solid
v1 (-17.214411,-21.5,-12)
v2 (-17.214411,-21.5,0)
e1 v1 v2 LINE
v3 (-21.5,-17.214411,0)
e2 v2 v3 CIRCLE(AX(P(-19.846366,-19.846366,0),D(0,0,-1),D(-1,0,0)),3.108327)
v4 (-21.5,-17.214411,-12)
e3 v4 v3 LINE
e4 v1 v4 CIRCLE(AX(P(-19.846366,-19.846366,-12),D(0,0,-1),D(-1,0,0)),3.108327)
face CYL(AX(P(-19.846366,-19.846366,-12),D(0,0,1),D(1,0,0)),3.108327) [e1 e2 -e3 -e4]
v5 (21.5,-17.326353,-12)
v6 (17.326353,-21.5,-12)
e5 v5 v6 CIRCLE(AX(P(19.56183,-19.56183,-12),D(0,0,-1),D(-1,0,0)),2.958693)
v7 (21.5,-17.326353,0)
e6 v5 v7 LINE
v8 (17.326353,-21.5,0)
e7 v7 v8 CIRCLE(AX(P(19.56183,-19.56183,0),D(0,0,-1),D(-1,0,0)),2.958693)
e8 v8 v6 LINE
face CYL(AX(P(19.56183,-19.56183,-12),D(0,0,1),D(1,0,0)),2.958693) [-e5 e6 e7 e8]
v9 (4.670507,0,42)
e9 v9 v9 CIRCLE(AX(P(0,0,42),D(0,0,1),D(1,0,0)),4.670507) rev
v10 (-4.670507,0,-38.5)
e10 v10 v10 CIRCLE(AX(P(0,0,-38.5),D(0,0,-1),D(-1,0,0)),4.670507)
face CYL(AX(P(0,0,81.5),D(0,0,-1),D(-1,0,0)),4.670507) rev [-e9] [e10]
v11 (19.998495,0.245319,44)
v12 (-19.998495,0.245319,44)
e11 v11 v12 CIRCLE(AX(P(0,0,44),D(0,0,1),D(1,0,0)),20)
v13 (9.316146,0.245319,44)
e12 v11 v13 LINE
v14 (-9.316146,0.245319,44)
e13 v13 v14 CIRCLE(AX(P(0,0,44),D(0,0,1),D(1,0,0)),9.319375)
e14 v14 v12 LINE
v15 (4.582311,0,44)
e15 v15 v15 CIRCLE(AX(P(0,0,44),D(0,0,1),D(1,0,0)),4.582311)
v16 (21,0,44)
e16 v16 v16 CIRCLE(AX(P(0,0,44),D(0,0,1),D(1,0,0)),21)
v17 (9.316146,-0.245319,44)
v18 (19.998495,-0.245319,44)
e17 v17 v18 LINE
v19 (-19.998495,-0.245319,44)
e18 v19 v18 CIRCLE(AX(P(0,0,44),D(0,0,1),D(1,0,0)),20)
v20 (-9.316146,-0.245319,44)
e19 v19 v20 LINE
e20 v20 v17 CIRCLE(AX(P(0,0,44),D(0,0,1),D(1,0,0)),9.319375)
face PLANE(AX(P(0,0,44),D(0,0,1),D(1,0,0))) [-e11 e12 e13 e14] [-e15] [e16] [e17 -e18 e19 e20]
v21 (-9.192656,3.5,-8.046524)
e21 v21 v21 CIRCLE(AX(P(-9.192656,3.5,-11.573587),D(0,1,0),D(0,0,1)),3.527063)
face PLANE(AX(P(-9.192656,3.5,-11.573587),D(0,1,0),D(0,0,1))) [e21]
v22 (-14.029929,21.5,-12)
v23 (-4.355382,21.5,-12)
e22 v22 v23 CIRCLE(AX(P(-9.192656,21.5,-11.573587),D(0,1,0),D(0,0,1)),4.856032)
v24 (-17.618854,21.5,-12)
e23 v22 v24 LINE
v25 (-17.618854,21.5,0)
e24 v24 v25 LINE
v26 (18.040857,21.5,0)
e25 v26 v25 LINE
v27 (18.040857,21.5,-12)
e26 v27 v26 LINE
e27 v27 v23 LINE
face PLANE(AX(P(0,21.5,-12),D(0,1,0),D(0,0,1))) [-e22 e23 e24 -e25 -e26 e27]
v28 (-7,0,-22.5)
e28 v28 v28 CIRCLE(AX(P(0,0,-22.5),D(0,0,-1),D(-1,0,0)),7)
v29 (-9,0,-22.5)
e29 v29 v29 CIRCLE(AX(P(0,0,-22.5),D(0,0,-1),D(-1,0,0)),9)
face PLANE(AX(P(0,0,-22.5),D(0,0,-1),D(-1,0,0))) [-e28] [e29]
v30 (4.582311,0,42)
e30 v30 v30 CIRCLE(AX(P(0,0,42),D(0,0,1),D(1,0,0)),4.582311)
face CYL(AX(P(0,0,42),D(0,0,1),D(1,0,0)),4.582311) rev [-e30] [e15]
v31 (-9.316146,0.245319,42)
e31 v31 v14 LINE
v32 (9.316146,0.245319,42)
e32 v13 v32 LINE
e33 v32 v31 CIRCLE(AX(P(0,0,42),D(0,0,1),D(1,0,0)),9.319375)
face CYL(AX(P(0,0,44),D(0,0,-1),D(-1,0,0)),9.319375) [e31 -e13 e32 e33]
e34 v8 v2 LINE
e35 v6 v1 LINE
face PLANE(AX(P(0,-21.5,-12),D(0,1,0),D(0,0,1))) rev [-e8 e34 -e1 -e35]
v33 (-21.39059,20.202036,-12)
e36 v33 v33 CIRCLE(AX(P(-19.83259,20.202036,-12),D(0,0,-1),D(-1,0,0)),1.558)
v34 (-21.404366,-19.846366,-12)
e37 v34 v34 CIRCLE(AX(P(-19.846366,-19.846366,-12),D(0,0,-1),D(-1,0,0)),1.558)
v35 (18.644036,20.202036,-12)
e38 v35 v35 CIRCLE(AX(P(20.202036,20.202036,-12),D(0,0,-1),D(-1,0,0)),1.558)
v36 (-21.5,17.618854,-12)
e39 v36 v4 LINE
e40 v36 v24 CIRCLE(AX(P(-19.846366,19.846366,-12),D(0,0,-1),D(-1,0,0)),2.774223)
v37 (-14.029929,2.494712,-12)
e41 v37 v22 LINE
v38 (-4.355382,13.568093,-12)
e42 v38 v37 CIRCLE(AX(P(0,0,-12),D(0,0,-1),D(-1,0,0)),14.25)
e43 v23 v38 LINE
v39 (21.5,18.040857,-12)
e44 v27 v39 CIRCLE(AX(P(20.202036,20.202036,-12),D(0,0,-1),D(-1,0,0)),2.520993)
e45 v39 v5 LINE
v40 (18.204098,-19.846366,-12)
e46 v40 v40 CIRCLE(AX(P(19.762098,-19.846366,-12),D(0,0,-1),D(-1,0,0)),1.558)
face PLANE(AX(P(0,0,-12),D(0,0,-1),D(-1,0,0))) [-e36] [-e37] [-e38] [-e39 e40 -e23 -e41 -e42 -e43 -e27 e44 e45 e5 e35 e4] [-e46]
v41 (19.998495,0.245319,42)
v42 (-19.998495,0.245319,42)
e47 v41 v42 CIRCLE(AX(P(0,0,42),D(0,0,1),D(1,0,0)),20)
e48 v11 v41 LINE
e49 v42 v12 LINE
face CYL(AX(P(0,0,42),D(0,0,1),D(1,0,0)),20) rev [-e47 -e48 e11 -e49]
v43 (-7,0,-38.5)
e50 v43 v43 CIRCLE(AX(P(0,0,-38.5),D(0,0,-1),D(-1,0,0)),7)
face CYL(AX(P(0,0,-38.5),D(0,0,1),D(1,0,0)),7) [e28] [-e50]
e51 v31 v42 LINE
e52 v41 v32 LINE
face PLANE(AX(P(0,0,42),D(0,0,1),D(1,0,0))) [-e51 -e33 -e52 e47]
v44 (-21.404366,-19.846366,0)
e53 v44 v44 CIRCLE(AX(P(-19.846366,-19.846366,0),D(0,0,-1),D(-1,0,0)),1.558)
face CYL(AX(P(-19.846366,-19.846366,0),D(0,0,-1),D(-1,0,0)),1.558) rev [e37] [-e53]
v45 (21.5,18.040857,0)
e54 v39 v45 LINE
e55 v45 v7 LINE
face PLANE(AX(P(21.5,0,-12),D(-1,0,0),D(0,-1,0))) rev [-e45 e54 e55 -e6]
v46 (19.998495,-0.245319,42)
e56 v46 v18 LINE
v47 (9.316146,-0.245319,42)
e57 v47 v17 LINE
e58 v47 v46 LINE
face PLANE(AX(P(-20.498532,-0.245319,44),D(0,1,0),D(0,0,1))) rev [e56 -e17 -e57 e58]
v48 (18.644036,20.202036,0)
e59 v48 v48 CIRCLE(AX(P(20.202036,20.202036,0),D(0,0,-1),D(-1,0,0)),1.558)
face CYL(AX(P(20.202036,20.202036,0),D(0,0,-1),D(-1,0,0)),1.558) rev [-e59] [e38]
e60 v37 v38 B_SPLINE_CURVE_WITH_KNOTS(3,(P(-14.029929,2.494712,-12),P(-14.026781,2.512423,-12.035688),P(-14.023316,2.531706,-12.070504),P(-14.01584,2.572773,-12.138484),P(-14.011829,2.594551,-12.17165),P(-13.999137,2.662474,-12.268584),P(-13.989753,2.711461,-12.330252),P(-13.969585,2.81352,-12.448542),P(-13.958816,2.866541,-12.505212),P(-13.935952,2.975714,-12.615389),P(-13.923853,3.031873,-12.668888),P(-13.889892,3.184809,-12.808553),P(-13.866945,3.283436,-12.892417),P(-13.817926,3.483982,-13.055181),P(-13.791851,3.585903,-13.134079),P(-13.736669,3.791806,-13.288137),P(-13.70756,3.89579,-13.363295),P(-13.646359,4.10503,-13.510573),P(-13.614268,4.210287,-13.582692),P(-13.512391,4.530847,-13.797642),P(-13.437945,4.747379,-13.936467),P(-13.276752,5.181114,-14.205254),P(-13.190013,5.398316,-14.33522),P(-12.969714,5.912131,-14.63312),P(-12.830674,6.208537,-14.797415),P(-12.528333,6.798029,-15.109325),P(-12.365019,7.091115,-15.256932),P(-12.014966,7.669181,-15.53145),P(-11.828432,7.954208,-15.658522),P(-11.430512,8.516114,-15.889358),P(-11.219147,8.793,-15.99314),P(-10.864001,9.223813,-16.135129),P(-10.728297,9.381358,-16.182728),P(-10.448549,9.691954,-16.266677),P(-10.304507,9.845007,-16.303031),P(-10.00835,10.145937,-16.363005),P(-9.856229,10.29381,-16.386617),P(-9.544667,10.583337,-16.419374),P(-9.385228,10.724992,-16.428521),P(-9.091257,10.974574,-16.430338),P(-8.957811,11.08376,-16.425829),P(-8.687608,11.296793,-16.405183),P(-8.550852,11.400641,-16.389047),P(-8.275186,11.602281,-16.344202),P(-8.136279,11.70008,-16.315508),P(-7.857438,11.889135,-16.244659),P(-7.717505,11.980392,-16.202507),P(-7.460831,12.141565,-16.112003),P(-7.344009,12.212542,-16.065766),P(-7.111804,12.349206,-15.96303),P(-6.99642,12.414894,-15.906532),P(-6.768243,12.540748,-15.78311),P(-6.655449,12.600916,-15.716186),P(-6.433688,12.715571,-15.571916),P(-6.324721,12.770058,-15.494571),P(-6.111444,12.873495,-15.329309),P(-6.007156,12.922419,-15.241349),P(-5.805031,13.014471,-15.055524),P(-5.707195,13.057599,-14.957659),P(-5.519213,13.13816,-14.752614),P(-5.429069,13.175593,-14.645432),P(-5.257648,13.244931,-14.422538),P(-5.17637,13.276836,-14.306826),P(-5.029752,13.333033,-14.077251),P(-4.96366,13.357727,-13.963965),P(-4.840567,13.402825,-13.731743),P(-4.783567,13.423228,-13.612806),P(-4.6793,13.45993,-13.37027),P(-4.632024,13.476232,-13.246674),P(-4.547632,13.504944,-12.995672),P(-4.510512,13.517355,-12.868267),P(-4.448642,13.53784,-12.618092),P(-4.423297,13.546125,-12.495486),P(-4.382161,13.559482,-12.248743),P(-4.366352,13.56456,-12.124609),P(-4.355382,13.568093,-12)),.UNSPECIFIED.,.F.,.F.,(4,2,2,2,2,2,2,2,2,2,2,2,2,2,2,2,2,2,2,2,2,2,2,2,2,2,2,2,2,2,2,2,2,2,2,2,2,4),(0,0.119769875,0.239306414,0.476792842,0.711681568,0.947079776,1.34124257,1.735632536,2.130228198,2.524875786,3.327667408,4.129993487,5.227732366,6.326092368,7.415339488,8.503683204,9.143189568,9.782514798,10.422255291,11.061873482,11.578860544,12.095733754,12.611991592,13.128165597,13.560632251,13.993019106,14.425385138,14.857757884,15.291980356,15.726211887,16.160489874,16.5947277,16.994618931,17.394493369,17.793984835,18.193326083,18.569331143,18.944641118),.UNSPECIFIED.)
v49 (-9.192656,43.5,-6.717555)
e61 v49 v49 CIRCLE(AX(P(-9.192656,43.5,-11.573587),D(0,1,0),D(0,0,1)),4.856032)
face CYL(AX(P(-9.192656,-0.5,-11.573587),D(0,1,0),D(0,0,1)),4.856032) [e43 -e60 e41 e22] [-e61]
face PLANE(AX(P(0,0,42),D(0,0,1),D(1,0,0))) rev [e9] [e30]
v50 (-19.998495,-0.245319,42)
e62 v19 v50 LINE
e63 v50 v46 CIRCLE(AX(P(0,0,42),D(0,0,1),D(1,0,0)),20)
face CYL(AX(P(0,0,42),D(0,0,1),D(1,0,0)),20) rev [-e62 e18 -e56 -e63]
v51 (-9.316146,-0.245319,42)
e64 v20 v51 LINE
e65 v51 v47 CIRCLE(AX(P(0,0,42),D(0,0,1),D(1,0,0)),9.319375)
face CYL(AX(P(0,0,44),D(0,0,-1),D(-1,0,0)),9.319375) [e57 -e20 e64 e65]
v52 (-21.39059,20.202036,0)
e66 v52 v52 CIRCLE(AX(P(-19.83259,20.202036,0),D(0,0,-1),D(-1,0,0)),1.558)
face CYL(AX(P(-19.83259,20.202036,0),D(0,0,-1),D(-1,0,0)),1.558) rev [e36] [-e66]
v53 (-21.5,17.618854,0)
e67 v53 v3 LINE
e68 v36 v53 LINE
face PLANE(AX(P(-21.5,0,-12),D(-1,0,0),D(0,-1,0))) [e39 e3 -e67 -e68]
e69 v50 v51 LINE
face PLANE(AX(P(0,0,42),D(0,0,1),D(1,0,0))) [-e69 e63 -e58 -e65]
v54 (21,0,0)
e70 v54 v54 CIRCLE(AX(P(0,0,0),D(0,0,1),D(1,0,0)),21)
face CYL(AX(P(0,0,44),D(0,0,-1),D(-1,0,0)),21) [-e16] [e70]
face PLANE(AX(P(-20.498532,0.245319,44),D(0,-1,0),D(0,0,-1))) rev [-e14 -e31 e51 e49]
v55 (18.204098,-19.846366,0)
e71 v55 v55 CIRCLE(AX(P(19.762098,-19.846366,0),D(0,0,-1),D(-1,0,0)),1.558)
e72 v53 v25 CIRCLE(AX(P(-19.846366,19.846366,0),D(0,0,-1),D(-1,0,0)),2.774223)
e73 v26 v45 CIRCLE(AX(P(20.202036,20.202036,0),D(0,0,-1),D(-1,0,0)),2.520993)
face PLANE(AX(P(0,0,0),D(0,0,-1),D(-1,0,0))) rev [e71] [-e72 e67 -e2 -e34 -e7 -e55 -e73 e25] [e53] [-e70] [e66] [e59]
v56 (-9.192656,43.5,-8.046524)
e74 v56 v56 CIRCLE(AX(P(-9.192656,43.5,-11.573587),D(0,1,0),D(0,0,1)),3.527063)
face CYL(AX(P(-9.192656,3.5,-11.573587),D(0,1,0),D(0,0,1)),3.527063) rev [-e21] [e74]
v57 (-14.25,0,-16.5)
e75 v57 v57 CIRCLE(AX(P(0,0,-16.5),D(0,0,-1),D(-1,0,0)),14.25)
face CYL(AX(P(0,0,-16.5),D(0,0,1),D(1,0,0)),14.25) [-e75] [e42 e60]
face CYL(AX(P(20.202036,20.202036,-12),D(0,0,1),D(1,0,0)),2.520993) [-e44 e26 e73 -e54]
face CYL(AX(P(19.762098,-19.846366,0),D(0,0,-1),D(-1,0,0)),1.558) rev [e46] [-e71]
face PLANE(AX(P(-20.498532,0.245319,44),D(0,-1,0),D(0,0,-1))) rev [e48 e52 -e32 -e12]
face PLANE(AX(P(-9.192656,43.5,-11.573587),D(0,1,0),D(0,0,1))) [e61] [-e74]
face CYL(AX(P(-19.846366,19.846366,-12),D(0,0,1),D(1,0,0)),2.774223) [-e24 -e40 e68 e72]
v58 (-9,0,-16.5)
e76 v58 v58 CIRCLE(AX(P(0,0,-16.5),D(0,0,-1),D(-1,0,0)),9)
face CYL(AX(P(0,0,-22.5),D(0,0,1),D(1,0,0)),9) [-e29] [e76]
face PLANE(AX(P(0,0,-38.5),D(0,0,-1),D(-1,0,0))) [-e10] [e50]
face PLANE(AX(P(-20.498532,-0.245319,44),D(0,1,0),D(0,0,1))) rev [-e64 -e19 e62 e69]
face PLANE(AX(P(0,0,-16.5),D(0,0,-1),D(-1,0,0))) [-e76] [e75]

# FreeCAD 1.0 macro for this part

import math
import FreeCAD as App
import Part
import Sketcher

V = App.Vector


def add_polygon(sketch, points):
    """Adds a closed chain of lines whose ends are joined by coincident constraints."""
    first, n = sketch.GeometryCount, len(points)
    for a, b in zip(points, points[1:] + points[:1]):
        sketch.addGeometry(Part.LineSegment(App.Vector(*a, 0), App.Vector(*b, 0)), False)
    for i in range(n):
        sketch.addConstraint(Sketcher.Constraint("Coincident", first + i, 2, first + (i + 1) % n, 1))

doc = App.newDocument("Part")
body = doc.addObject("PartDesign::Body", "Body")

sketch1 = doc.addObject("Sketcher::SketchObject", "Sketch")
body.addObject(sketch1)
sketch1.AttachmentSupport = (doc.XY_Plane, [""])
sketch1.MapMode = "FlatFace"
sketch1.addGeometry(Part.Circle(V(0, 0, 0), V(0, 0, 1), 21), False)
sketch1.addConstraint(Sketcher.Constraint("Coincident", 0, 3, -1, 1))
sketch1.addConstraint(Sketcher.Constraint("Diameter", 0, 42.0))
pad1 = doc.addObject("PartDesign::Pad", "Pad")
body.addObject(pad1)
pad1.Profile = sketch1
pad1.Length = 44

sketch2 = doc.addObject("Sketcher::SketchObject", "Sketch001")
body.addObject(sketch2)
sketch2.AttachmentSupport = (doc.XY_Plane, [""])
sketch2.MapMode = "FlatFace"
sketch2.addGeometry(Part.LineSegment(V(21.5, 18, 0), V(21.5, -17.3, 0)), False)
sketch2.addGeometry(Part.ArcOfCircle(Part.Circle(V(19.6, -19.6, 0), V(0, 0, 1), 3), math.radians(-139), math.radians(49)), False)
sketch2.addGeometry(Part.LineSegment(V(17.3, -21.5, 0), V(-17.2, -21.5, 0)), False)
sketch2.addGeometry(Part.ArcOfCircle(Part.Circle(V(-19.8, -19.8, 0), V(0, 0, 1), 3.1), math.radians(122), math.radians(328)), False)
sketch2.addGeometry(Part.LineSegment(V(-21.5, -17.2, 0), V(-21.5, 17.6, 0)), False)
sketch2.addGeometry(Part.ArcOfCircle(Part.Circle(V(-19.8, 19.8, 0), V(0, 0, 1), 2.8), math.radians(37), math.radians(233)), False)
sketch2.addGeometry(Part.LineSegment(V(-17.6, 21.5, 0), V(18, 21.5, 0)), False)
sketch2.addGeometry(Part.ArcOfCircle(Part.Circle(V(20.2, 20.2, 0), V(0, 0, 1), 2.5), math.radians(-59), math.radians(149)), False)
sketch2.addConstraint(Sketcher.Constraint("Coincident", 0, 2, 1, 2))
sketch2.addConstraint(Sketcher.Constraint("Coincident", 1, 1, 2, 1))
sketch2.addConstraint(Sketcher.Constraint("Coincident", 2, 2, 3, 2))
sketch2.addConstraint(Sketcher.Constraint("Coincident", 3, 1, 4, 1))
sketch2.addConstraint(Sketcher.Constraint("Coincident", 4, 2, 5, 2))
sketch2.addConstraint(Sketcher.Constraint("Coincident", 5, 1, 6, 1))
sketch2.addConstraint(Sketcher.Constraint("Coincident", 6, 2, 7, 2))
sketch2.addConstraint(Sketcher.Constraint("Coincident", 7, 1, 0, 1))
sketch2.addConstraint(Sketcher.Constraint("Vertical", 0))
sketch2.addConstraint(Sketcher.Constraint("Horizontal", 2))
sketch2.addConstraint(Sketcher.Constraint("Vertical", 4))
sketch2.addConstraint(Sketcher.Constraint("Horizontal", 6))
sketch2.addConstraint(Sketcher.Constraint("Symmetric", 3, 3, 5, 3, -1))
sketch2.addConstraint(Sketcher.Constraint("DistanceX", -1, 1, 0, 2, 21.5))
sketch2.addConstraint(Sketcher.Constraint("DistanceY", 1, 1, -1, 1, 21.5))
sketch2.addConstraint(Sketcher.Constraint("DistanceX", 3, 1, -1, 1, 21.5))
sketch2.addConstraint(Sketcher.Constraint("DistanceY", -1, 1, 5, 1, 21.5))
sketch2.addConstraint(Sketcher.Constraint("Radius", 1, 2.958693))
sketch2.addConstraint(Sketcher.Constraint("Radius", 3, 3.108327))
sketch2.addConstraint(Sketcher.Constraint("Radius", 5, 2.774223))
sketch2.addConstraint(Sketcher.Constraint("Radius", 7, 2.520993))
sketch2.addConstraint(Sketcher.Constraint("DistanceX", 6, 1, 6, 2, 35.659711))
sketch2.addConstraint(Sketcher.Constraint("DistanceY", 0, 2, 0, 1, 35.36721))
sketch2.addConstraint(Sketcher.Constraint("DistanceX", 5, 3, 7, 3, 40.048402))
sketch2.addConstraint(Sketcher.Constraint("DistanceY", 3, 3, 7, 3, 40.048402))
sketch2.addConstraint(Sketcher.Constraint("DistanceX", 2, 2, 2, 1, 34.540763))
sketch2.addConstraint(Sketcher.Constraint("DistanceY", 4, 1, 4, 2, 34.833265))
pad2 = doc.addObject("PartDesign::Pad", "Pad001")
body.addObject(pad2)
pad2.Profile = sketch2
pad2.Length = 12
pad2.Reversed = True

sketch3 = doc.addObject("Sketcher::SketchObject", "Sketch002")
body.addObject(sketch3)
sketch3.AttachmentSupport = (doc.XY_Plane, [""])
sketch3.MapMode = "FlatFace"
sketch3.AttachmentOffset = App.Placement(V(0, 0, -12), App.Rotation())
sketch3.addGeometry(Part.Circle(V(20.2, 20.2, 0), V(0, 0, 1), 1.6), False)
sketch3.addGeometry(Part.Circle(V(-19.8, 20.2, 0), V(0, 0, 1), 1.6), False)
sketch3.addGeometry(Part.Circle(V(-19.8, -19.8, 0), V(0, 0, 1), 1.6), False)
sketch3.addGeometry(Part.Circle(V(19.8, -19.8, 0), V(0, 0, 1), 1.6), False)
sketch3.addConstraint(Sketcher.Constraint("Equal", 0, 1))
sketch3.addConstraint(Sketcher.Constraint("Equal", 1, 2))
sketch3.addConstraint(Sketcher.Constraint("Equal", 2, 3))
sketch3.addConstraint(Sketcher.Constraint("Horizontal", 0, 3, 1, 3))
sketch3.addConstraint(Sketcher.Constraint("Horizontal", 2, 3, 3, 3))
sketch3.addConstraint(Sketcher.Constraint("Diameter", 0, 3.116))
sketch3.addConstraint(Sketcher.Constraint("DistanceX", -1, 1, 3, 3, 19.762098))
sketch3.addConstraint(Sketcher.Constraint("DistanceY", 2, 3, 1, 3, 40.048402))
sketch3.addConstraint(Sketcher.Constraint("DistanceX", 2, 3, 0, 3, 40.048402))
sketch3.addConstraint(Sketcher.Constraint("DistanceX", 1, 3, -1, 1, 19.83259))
sketch3.addConstraint(Sketcher.Constraint("DistanceX", -1, 1, 0, 3, 20.202036))
sketch3.addConstraint(Sketcher.Constraint("DistanceY", -1, 1, 0, 3, 20.202036))
pocket1 = doc.addObject("PartDesign::Pocket", "Pocket")
body.addObject(pocket1)
pocket1.Profile = sketch3
pocket1.Length = 12
pocket1.Reversed = True

sketch4 = doc.addObject("Sketcher::SketchObject", "Sketch003")
body.addObject(sketch4)
sketch4.AttachmentSupport = (doc.XY_Plane, [""])
sketch4.MapMode = "FlatFace"
sketch4.AttachmentOffset = App.Placement(V(0, 0, -12), App.Rotation())
sketch4.addGeometry(Part.Circle(V(0, 0, 0), V(0, 0, 1), 14), False)
sketch4.addConstraint(Sketcher.Constraint("Coincident", 0, 3, -1, 1))
sketch4.addConstraint(Sketcher.Constraint("Diameter", 0, 28.5))
pad3 = doc.addObject("PartDesign::Pad", "Pad002")
body.addObject(pad3)
pad3.Profile = sketch4
pad3.Length = 4.5
pad3.Reversed = True

sketch5 = doc.addObject("Sketcher::SketchObject", "Sketch004")
body.addObject(sketch5)
sketch5.AttachmentSupport = (doc.XZ_Plane, [""])
sketch5.MapMode = "FlatFace"
sketch5.AttachmentOffset = App.Placement(V(0, 0, -21.5), App.Rotation())
sketch5.addGeometry(Part.Circle(V(-9.2, -11.6, 0), V(0, 0, 1), 4.9), False)
sketch5.addConstraint(Sketcher.Constraint("Diameter", 0, 9.712063))
sketch5.addConstraint(Sketcher.Constraint("DistanceX", 0, 3, -1, 1, 9.192656))
sketch5.addConstraint(Sketcher.Constraint("DistanceY", 0, 3, -1, 1, 11.573587))
pad4 = doc.addObject("PartDesign::Pad", "Pad003")
body.addObject(pad4)
pad4.Profile = sketch5
pad4.Type = "TwoLengths"
pad4.Length = 22
pad4.Length2 = 22
pad4.Reversed = True

sketch6 = doc.addObject("Sketcher::SketchObject", "Sketch005")
body.addObject(sketch6)
sketch6.AttachmentSupport = (doc.XY_Plane, [""])
sketch6.MapMode = "FlatFace"
sketch6.AttachmentOffset = App.Placement(V(0, 0, -16.5), App.Rotation())
sketch6.addGeometry(Part.Circle(V(0, 0, 0), V(0, 0, 1), 9), False)
sketch6.addConstraint(Sketcher.Constraint("Coincident", 0, 3, -1, 1))
sketch6.addConstraint(Sketcher.Constraint("Diameter", 0, 18.0))
pad5 = doc.addObject("PartDesign::Pad", "Pad004")
body.addObject(pad5)
pad5.Profile = sketch6
pad5.Length = 6
pad5.Reversed = True

sketch7 = doc.addObject("Sketcher::SketchObject", "Sketch006")
body.addObject(sketch7)
sketch7.AttachmentSupport = (doc.XY_Plane, [""])
sketch7.MapMode = "FlatFace"
sketch7.AttachmentOffset = App.Placement(V(0, 0, -22.5), App.Rotation())
sketch7.addGeometry(Part.Circle(V(0, 0, 0), V(0, 0, 1), 7), False)
sketch7.addConstraint(Sketcher.Constraint("Coincident", 0, 3, -1, 1))
sketch7.addConstraint(Sketcher.Constraint("Diameter", 0, 14.0))
pad6 = doc.addObject("PartDesign::Pad", "Pad005")
body.addObject(pad6)
pad6.Profile = sketch7
pad6.Length = 16
pad6.Reversed = True

sketch8 = doc.addObject("Sketcher::SketchObject", "Sketch007")
body.addObject(sketch8)
sketch8.AttachmentSupport = (doc.XY_Plane, [""])
sketch8.MapMode = "FlatFace"
sketch8.AttachmentOffset = App.Placement(V(0, 0, -38.5), App.Rotation())
sketch8.addGeometry(Part.Circle(V(0, 0, 0), V(0, 0, 1), 4.7), False)
sketch8.addConstraint(Sketcher.Constraint("Coincident", 0, 3, -1, 1))
sketch8.addConstraint(Sketcher.Constraint("Diameter", 0, 9.341014))
pocket2 = doc.addObject("PartDesign::Pocket", "Pocket001")
body.addObject(pocket2)
pocket2.Profile = sketch8
pocket2.Length = 120
pocket2.Reversed = True

sketch9 = doc.addObject("Sketcher::SketchObject", "Sketch008")
body.addObject(sketch9)
sketch9.AttachmentSupport = (doc.XZ_Plane, [""])
sketch9.MapMode = "FlatFace"
sketch9.AttachmentOffset = App.Placement(V(0, 0, -43.5), App.Rotation())
sketch9.addGeometry(Part.Circle(V(-9.2, -11.6, 0), V(0, 0, 1), 3.5), False)
sketch9.addConstraint(Sketcher.Constraint("Diameter", 0, 7.054126))
sketch9.addConstraint(Sketcher.Constraint("DistanceX", 0, 3, -1, 1, 9.192656))
sketch9.addConstraint(Sketcher.Constraint("DistanceY", 0, 3, -1, 1, 11.573587))
pocket3 = doc.addObject("PartDesign::Pocket", "Pocket002")
body.addObject(pocket3)
pocket3.Profile = sketch9
pocket3.Length = 40
pocket3.Reversed = True

sketch10 = doc.addObject("Sketcher::SketchObject", "Sketch009")
body.addObject(sketch10)
sketch10.AttachmentSupport = (doc.XY_Plane, [""])
sketch10.MapMode = "FlatFace"
sketch10.AttachmentOffset = App.Placement(V(0, 0, 44), App.Rotation())
sketch10.addGeometry(Part.Circle(V(0, 0, 0), V(0, 0, 1), 20), False)
sketch10.addConstraint(Sketcher.Constraint("Coincident", 0, 3, -1, 1))
sketch10.addConstraint(Sketcher.Constraint("Diameter", 0, 40.0))
pocket4 = doc.addObject("PartDesign::Pocket", "Pocket003")
body.addObject(pocket4)
pocket4.Profile = sketch10
pocket4.Length = 2

sketch11 = doc.addObject("Sketcher::SketchObject", "Sketch010")
body.addObject(sketch11)
sketch11.AttachmentSupport = (doc.XY_Plane, [""])
sketch11.MapMode = "FlatFace"
sketch11.AttachmentOffset = App.Placement(V(0, 0, 42), App.Rotation())
add_polygon(sketch11, [(-20.5, 0.25), (-20.5, -0.25), (20.5, -0.25), (20.5, 0.25)])
sketch11.addConstraint(Sketcher.Constraint("Vertical", 0))
sketch11.addConstraint(Sketcher.Constraint("Horizontal", 1))
sketch11.addConstraint(Sketcher.Constraint("Vertical", 2))
sketch11.addConstraint(Sketcher.Constraint("Horizontal", 3))
sketch11.addConstraint(Sketcher.Constraint("Symmetric", 0, 2, 2, 2, -1, 1))
sketch11.addConstraint(Sketcher.Constraint("DistanceX", 1, 1, 1, 2, 40.997064))
sketch11.addConstraint(Sketcher.Constraint("DistanceY", 0, 2, 0, 1, 0.490637))
pad7 = doc.addObject("PartDesign::Pad", "Pad006")
body.addObject(pad7)
pad7.Profile = sketch11
pad7.Length = 2

sketch12 = doc.addObject("Sketcher::SketchObject", "Sketch011")
body.addObject(sketch12)
sketch12.AttachmentSupport = (doc.XY_Plane, [""])
sketch12.MapMode = "FlatFace"
sketch12.AttachmentOffset = App.Placement(V(0, 0, 42), App.Rotation())
sketch12.addGeometry(Part.Circle(V(0, 0, 0), V(0, 0, 1), 9), False)
sketch12.addConstraint(Sketcher.Constraint("Coincident", 0, 3, -1, 1))
sketch12.addConstraint(Sketcher.Constraint("Diameter", 0, 18.638751))
pad8 = doc.addObject("PartDesign::Pad", "Pad007")
body.addObject(pad8)
pad8.Profile = sketch12
pad8.Length = 2

sketch13 = doc.addObject("Sketcher::SketchObject", "Sketch012")
body.addObject(sketch13)
sketch13.AttachmentSupport = (doc.XY_Plane, [""])
sketch13.MapMode = "FlatFace"
sketch13.AttachmentOffset = App.Placement(V(0, 0, 44), App.Rotation())
sketch13.addGeometry(Part.Circle(V(0, 0, 0), V(0, 0, 1), 4.6), False)
sketch13.addConstraint(Sketcher.Constraint("Coincident", 0, 3, -1, 1))
sketch13.addConstraint(Sketcher.Constraint("Diameter", 0, 9.164622))
pocket5 = doc.addObject("PartDesign::Pocket", "Pocket004")
body.addObject(pocket5)
pocket5.Profile = sketch13
pocket5.Length = 2

doc.recompute()
